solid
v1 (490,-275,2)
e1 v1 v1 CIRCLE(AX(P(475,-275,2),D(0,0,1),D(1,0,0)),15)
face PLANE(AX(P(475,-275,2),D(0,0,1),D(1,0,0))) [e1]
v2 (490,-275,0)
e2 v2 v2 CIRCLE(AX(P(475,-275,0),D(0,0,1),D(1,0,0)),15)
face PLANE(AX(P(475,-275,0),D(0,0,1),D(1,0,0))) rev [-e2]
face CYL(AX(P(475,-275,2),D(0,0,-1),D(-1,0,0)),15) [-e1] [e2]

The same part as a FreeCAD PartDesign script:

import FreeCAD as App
import Part
import Sketcher
from FreeCAD import Vector
Q = App.Units.Quantity

doc = App.newDocument("Part")
params = doc.addObject("Spreadsheet::Sheet", "Params")
for row, (alias, value) in enumerate([
    ("sketch1_diameter", "30 mm"),
    ("pad1_length", "2 mm"),
], start=1):
    params.set(f"A{row}", alias)
    params.set(f"B{row}", "=" + value)
    params.setAlias(f"B{row}", alias)

body = doc.addObject("PartDesign::Body", "Body")

sketch1 = body.newObject("Sketcher::SketchObject", "Sketch")
sketch1.AttachmentSupport = (doc.getObject("XY_Plane"), [""])
sketch1.MapMode = "FlatFace"
sketch1.addGeometry(Part.Circle(Vector(475, -275, 0), Vector(0, 0, 1), 15), False)
sketch1.addConstraint(Sketcher.Constraint("Diameter", 0, Q("30 mm")))
sketch1.addConstraint(Sketcher.Constraint("DistanceX", -1, 1, 0, 3, Q("475 mm")))
sketch1.addConstraint(Sketcher.Constraint("DistanceY", 0, 3, -1, 1, Q("275 mm")))
sketch1.setExpression("Constraints[0]", "Params.sketch1_diameter")
pad1 = body.newObject("PartDesign::Pad", "Pad")
pad1.Profile = sketch1
pad1.setExpression("Length", "Params.pad1_length")

doc.recompute()
